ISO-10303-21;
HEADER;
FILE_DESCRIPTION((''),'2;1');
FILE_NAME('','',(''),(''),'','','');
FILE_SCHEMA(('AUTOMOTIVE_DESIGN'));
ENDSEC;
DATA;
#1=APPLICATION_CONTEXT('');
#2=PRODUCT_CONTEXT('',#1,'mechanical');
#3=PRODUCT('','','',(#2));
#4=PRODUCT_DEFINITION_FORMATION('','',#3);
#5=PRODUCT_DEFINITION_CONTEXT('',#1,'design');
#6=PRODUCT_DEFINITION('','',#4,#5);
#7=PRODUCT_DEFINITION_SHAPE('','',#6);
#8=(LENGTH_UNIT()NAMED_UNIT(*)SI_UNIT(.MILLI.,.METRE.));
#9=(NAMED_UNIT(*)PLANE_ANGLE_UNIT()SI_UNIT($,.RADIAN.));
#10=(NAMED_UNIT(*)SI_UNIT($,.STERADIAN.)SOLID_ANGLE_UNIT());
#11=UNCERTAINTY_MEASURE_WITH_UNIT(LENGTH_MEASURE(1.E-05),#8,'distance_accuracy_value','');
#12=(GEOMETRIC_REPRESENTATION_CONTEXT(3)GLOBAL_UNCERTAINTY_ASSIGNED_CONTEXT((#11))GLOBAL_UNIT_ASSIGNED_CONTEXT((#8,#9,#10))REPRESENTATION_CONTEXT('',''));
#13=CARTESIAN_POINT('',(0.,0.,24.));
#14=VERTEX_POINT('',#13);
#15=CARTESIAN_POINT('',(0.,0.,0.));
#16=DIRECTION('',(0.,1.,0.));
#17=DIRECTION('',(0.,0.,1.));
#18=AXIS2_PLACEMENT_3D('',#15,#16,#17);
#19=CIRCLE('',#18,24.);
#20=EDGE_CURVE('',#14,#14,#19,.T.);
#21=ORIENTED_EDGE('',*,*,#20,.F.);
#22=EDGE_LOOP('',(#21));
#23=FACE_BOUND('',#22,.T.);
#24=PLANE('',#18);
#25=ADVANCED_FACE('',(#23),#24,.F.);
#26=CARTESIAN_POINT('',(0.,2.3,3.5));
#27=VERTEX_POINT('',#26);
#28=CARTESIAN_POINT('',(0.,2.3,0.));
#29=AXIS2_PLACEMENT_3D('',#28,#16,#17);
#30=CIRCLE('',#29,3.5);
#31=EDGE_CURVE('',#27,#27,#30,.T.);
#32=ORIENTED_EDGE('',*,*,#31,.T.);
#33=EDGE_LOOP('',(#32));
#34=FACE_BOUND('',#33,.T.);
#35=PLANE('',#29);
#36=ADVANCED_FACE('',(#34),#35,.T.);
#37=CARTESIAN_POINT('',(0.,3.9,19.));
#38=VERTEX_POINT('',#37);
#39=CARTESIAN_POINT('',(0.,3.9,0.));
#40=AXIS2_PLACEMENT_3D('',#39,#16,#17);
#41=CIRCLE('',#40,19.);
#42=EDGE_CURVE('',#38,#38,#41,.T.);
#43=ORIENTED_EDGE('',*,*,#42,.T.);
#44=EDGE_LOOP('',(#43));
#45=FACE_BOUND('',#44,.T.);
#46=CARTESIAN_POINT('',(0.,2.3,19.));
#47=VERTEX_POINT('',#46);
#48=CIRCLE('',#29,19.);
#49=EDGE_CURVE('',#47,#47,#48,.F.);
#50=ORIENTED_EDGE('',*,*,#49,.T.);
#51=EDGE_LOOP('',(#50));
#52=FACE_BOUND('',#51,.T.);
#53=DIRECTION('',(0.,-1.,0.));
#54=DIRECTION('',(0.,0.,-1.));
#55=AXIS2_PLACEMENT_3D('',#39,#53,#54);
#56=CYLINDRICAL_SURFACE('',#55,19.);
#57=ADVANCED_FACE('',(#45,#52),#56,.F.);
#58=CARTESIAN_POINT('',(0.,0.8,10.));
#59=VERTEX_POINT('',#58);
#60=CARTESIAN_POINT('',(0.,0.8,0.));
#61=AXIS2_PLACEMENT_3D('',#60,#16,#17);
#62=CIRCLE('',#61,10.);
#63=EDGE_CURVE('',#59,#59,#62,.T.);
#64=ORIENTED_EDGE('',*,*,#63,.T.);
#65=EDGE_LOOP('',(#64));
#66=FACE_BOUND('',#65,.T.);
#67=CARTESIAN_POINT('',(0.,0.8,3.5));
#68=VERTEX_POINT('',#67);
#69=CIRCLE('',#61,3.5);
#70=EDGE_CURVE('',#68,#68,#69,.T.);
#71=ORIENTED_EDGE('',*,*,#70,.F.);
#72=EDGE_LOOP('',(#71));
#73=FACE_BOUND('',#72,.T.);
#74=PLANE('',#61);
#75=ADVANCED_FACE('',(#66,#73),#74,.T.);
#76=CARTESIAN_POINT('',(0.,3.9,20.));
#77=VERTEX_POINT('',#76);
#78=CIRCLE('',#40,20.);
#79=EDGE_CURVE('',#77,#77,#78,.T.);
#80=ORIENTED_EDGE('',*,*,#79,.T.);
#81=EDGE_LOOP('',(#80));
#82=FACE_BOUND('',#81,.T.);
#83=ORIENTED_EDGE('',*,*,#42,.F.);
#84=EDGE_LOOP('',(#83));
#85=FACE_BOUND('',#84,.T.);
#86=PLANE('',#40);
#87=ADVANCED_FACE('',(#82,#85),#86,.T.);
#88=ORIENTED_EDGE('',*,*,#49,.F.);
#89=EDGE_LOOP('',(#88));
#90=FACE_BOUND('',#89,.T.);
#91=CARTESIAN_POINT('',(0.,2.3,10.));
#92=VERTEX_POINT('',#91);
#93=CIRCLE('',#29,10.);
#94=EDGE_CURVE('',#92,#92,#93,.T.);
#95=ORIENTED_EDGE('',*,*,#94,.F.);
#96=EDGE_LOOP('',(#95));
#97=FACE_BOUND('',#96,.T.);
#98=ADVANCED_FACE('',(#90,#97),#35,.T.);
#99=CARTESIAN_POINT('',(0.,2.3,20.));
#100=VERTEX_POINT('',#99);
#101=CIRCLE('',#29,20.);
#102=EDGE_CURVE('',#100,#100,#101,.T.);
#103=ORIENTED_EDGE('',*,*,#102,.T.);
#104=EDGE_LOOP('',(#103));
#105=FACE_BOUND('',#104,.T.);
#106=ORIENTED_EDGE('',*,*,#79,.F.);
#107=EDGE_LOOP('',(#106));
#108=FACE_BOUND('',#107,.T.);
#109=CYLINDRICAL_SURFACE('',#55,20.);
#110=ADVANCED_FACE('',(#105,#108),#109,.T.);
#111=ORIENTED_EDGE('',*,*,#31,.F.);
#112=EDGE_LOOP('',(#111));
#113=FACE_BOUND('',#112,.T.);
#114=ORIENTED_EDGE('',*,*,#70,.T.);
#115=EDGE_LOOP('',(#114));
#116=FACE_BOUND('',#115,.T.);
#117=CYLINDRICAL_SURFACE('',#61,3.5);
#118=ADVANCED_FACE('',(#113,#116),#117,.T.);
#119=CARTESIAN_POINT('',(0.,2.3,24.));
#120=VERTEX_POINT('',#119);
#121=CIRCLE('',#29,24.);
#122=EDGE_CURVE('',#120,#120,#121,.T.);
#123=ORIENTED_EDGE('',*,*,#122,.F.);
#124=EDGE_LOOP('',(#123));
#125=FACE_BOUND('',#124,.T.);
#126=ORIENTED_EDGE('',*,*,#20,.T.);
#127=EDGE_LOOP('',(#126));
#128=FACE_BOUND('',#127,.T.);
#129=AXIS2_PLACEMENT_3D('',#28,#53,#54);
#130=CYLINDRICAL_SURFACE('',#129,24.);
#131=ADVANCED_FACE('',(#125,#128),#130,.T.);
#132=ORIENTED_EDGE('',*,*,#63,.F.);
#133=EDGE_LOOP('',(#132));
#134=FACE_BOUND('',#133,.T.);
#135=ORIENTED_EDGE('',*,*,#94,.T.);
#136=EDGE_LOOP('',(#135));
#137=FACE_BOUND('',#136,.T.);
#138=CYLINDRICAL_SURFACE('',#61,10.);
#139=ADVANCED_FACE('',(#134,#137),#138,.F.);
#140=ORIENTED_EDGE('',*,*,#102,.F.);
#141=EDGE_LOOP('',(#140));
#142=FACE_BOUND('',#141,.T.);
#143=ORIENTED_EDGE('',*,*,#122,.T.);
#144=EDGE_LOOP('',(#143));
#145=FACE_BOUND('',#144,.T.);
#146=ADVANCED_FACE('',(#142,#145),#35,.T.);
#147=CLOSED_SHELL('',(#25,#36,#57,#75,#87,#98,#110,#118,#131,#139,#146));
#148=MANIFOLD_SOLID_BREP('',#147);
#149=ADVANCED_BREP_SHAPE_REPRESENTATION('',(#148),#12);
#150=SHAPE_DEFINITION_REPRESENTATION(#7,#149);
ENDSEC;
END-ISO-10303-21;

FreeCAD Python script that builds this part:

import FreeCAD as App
import Part
import Sketcher

doc = App.newDocument("Part")
params = doc.addObject("Spreadsheet::Sheet", "Params")
for row, (alias, value) in enumerate([
    ("sketch1_diameter", "48 mm"),
    ("pad1_length", "2.3 mm"),
    ("sketch2_diameter", "20 mm"),
    ("sketch2_diameter2", "7 mm"),
    ("pocket1_length", "1.5 mm"),
    ("sketch3_diameter", "40 mm"),
    ("sketch3_diameter2", "38 mm"),
    ("pad2_length", "1.6 mm"),
], start=1):
    params.set(f"A{row}", alias)
    params.set(f"B{row}", "=" + value)
    params.setAlias(f"B{row}", alias)

body = doc.addObject("PartDesign::Body", "Body")

# Sketch on XZ plane
sketch1 = body.newObject("Sketcher::SketchObject", "Sketch")
sketch1.AttachmentSupport = (doc.getObject("XZ_Plane"), [""])
sketch1.MapMode = "FlatFace"
sketch1.addGeometry(Part.Circle(App.Vector(0, 0, 0), App.Vector(0, 0, 1), 24), False)
sketch1.addConstraint([
    Sketcher.Constraint("Coincident", 0, 3, -1, 1),
    Sketcher.Constraint("Diameter", 0, 48.0),
])
sketch1.setExpression("Constraints[1]", "Params.sketch1_diameter")
pad1 = body.newObject("PartDesign::Pad", "Pad")
pad1.Profile = sketch1
pad1.setExpression("Length", "Params.pad1_length")
pad1.Reversed = True

# Sketch on XZ plane
sketch2 = body.newObject("Sketcher::SketchObject", "Sketch001")
sketch2.AttachmentSupport = (doc.getObject("XZ_Plane"), [""])
sketch2.MapMode = "FlatFace"
sketch2.AttachmentOffset = App.Placement(App.Vector(0, 0, -2.3), App.Rotation())
sketch2.addGeometry([
    Part.Circle(App.Vector(0, 0, 0), App.Vector(0, 0, 1), 10),
    Part.Circle(App.Vector(0, 0, 0), App.Vector(0, 0, 1), 3.5),
], False)
sketch2.addConstraint([
    Sketcher.Constraint("Coincident", 0, 3, -1, 1),
    Sketcher.Constraint("Coincident", 1, 3, -1, 1),
    Sketcher.Constraint("Diameter", 0, 20.0),
    Sketcher.Constraint("Diameter", 1, 7.0),
])
sketch2.setExpression("Constraints[2]", "Params.sketch2_diameter")
sketch2.setExpression("Constraints[3]", "Params.sketch2_diameter2")
pocket1 = body.newObject("PartDesign::Pocket", "Pocket")
pocket1.Profile = sketch2
pocket1.setExpression("Length", "Params.pocket1_length")
pocket1.Reversed = True

# Sketch on XZ plane
sketch3 = body.newObject("Sketcher::SketchObject", "Sketch002")
sketch3.AttachmentSupport = (doc.getObject("XZ_Plane"), [""])
sketch3.MapMode = "FlatFace"
sketch3.AttachmentOffset = App.Placement(App.Vector(0, 0, -2.3), App.Rotation())
sketch3.addGeometry([
    Part.Circle(App.Vector(0, 0, 0), App.Vector(0, 0, 1), 20),
    Part.Circle(App.Vector(0, 0, 0), App.Vector(0, 0, 1), 19),
], False)
sketch3.addConstraint([
    Sketcher.Constraint("Coincident", 0, 3, -1, 1),
    Sketcher.Constraint("Coincident", 1, 3, -1, 1),
    Sketcher.Constraint("Diameter", 0, 40.0),
    Sketcher.Constraint("Diameter", 1, 38.0),
])
sketch3.setExpression("Constraints[2]", "Params.sketch3_diameter")
sketch3.setExpression("Constraints[3]", "Params.sketch3_diameter2")
pad2 = body.newObject("PartDesign::Pad", "Pad001")
pad2.Profile = sketch3
pad2.setExpression("Length", "Params.pad2_length")
pad2.Reversed = True

doc.recompute()
